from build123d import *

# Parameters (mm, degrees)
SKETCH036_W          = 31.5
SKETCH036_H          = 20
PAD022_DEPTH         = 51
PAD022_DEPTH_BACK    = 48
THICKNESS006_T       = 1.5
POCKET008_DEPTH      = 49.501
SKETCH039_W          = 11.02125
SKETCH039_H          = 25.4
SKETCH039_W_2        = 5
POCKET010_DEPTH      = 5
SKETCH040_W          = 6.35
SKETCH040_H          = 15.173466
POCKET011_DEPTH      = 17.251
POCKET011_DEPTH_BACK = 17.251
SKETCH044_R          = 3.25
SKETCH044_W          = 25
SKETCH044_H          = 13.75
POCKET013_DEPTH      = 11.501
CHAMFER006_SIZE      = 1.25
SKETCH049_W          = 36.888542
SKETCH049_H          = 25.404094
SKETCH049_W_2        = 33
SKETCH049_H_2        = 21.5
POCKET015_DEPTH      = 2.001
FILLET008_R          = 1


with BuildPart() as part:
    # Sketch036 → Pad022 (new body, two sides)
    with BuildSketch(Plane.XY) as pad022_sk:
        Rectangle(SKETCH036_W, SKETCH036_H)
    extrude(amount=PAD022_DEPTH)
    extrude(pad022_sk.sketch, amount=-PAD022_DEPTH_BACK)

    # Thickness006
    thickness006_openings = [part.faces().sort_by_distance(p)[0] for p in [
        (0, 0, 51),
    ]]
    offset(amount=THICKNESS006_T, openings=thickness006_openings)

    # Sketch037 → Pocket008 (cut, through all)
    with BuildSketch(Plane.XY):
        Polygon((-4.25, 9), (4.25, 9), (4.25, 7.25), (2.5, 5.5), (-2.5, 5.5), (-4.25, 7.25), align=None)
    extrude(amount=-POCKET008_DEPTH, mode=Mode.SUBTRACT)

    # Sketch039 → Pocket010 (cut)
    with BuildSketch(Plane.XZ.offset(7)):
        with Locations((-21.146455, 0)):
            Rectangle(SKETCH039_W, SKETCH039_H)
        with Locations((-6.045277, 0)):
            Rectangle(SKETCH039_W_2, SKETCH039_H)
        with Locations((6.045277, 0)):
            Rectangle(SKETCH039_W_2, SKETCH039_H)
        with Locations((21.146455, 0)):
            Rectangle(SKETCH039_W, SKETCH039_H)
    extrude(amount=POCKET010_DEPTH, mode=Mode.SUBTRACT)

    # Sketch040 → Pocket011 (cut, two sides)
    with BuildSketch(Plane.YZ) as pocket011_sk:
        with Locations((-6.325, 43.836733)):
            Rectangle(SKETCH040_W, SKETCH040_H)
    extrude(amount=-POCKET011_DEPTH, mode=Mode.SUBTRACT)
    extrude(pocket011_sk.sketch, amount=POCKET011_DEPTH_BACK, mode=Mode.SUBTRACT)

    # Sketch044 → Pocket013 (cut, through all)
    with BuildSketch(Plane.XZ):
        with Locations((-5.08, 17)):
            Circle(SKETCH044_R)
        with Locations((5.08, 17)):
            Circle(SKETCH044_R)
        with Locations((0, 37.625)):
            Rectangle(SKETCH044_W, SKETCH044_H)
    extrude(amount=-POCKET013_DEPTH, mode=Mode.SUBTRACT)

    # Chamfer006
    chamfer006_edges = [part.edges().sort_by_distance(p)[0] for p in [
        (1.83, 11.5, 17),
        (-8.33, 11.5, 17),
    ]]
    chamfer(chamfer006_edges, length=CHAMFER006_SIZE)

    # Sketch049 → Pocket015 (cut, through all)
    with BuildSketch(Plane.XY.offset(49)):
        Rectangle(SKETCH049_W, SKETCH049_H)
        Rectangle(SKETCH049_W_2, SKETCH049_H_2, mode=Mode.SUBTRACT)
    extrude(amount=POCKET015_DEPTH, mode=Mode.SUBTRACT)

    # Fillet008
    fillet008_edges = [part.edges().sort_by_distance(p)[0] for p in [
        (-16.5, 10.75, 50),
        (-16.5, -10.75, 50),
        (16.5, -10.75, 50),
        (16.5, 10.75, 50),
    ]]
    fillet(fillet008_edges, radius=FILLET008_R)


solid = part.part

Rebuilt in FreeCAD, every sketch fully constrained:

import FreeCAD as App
import Part
import Sketcher

V = App.Vector


def edges_at(feature, points):
    """Names of the edges that pass closest to the given points."""
    edges = feature.Shape.Edges
    near = lambda p: min(range(len(edges)), key=lambda i: edges[i].distToShape(Part.Vertex(*p))[0])
    return sorted({f"Edge{near(p) + 1}" for p in points})


def faces_at(feature, points):
    """Names of the faces that lie closest to the given points."""
    faces = feature.Shape.Faces
    near = lambda p: min(range(len(faces)), key=lambda i: faces[i].distToShape(Part.Vertex(*p))[0])
    return sorted({f"Face{near(p) + 1}" for p in points})


def add_polygon(sketch, points):
    """Adds a closed chain of lines whose ends are joined by coincident constraints."""
    first, n = sketch.GeometryCount, len(points)
    for a, b in zip(points, points[1:] + points[:1]):
        sketch.addGeometry(Part.LineSegment(App.Vector(*a, 0), App.Vector(*b, 0)), False)
    for i in range(n):
        sketch.addConstraint(Sketcher.Constraint("Coincident", first + i, 2, first + (i + 1) % n, 1))

doc = App.newDocument("Part")
params = doc.addObject("Spreadsheet::Sheet", "Params")
for row, (alias, value) in enumerate([
    ("sketch1_height", "20 mm"),
    ("sketch1_width", "31.5 mm"),
    ("pad1_length", "51 mm"),
    ("pad1_length2", "48 mm"),
    ("thickness_wall", "1.5 mm"),
    ("sketch2_width", "5 mm"),
    ("sketch2_width2", "8.5 mm"),
    ("sketch2_height", "1.75 mm"),
    ("sketch3_width", "5 mm"),
    ("sketch3_height", "25.4 mm"),
    ("pocket2_length", "5 mm"),
    ("sketch4_width", "6.35 mm"),
    ("sketch5_diameter", "6.5 mm"),
    ("sketch5_width", "25 mm"),
    ("sketch5_height", "13.75 mm"),
    ("chamfer_size", "1.25 mm"),
    ("sketch6_width", "33 mm"),
    ("sketch6_height", "21.5 mm"),
    ("fillet_radius", "1 mm"),
], start=1):
    params.set(f"A{row}", alias)
    params.set(f"B{row}", "=" + value)
    params.setAlias(f"B{row}", alias)

body = doc.addObject("PartDesign::Body", "Body")

# Sketch on XY plane
sketch1 = doc.addObject("Sketcher::SketchObject", "Sketch")
body.addObject(sketch1)
sketch1.AttachmentSupport = (doc.XY_Plane, [""])
sketch1.MapMode = "FlatFace"
add_polygon(sketch1, [(-15.75, 10), (-15.75, -10), (15.75, -10), (15.75, 10)])  # lines 0-3
sketch1.addConstraint([
    Sketcher.Constraint("Vertical", 0),
    Sketcher.Constraint("Horizontal", 1),
    Sketcher.Constraint("Vertical", 2),
    Sketcher.Constraint("Horizontal", 3),
    Sketcher.Constraint("Symmetric", 0, 2, 2, 2, -1, 1),
    Sketcher.Constraint("DistanceY", 0, 2, 0, 1, 20.0),
    Sketcher.Constraint("DistanceX", 1, 1, 1, 2, 31.5),
])
sketch1.setExpression("Constraints[9]", "Params.sketch1_height")
sketch1.setExpression("Constraints[10]", "Params.sketch1_width")
pad1 = doc.addObject("PartDesign::Pad", "Pad")
body.addObject(pad1)
pad1.Profile = sketch1
pad1.Type = "TwoLengths"
pad1.setExpression("Length", "Params.pad1_length")
pad1.setExpression("Length2", "Params.pad1_length2")
doc.recompute()

thickness = doc.addObject("PartDesign::Thickness", "Thickness")
body.addObject(thickness)
thickness.Base = (pad1, faces_at(pad1, [(0, 0, 51)]))
thickness.setExpression("Value", "Params.thickness_wall")
thickness.Reversed = False
thickness.Join = "Arc"

# Sketch on XY plane
sketch2 = doc.addObject("Sketcher::SketchObject", "Sketch001")
body.addObject(sketch2)
sketch2.AttachmentSupport = (doc.XY_Plane, [""])
sketch2.MapMode = "FlatFace"
add_polygon(sketch2, [(4.25, 9), (-4.25, 9), (-4.25, 7.25), (-2.5, 5.5), (2.5, 5.5), (4.25, 7.25)])  # lines 0-5
sketch2.addConstraint([
    Sketcher.Constraint("Horizontal", 0),
    Sketcher.Constraint("Vertical", 1),
    Sketcher.Constraint("Horizontal", 3),
    Sketcher.Constraint("Vertical", 5),
    Sketcher.Constraint("Symmetric", 1, 2, 4, 2, -2),
    Sketcher.Constraint("Perpendicular", 2, 4),
    Sketcher.Constraint("Equal", 2, 4),
    Sketcher.Constraint("DistanceX", 3, 1, 3, 2, 5.0),
    Sketcher.Constraint("DistanceX", 0, 2, 0, 1, 8.5),
    Sketcher.Constraint("DistanceY", -1, 1, 0, 2, 9.0),
    Sketcher.Constraint("DistanceY", 1, 2, 1, 1, 1.75),
])
sketch2.setExpression("Constraints[13]", "Params.sketch2_width")
sketch2.setExpression("Constraints[14]", "Params.sketch2_width2")
sketch2.setExpression("Constraints[16]", "Params.sketch2_height")
pocket1 = doc.addObject("PartDesign::Pocket", "Pocket")
body.addObject(pocket1)
pocket1.Profile = sketch2
pocket1.Type = "ThroughAll"

# Sketch on XZ plane
sketch3 = doc.addObject("Sketcher::SketchObject", "Sketch002")
body.addObject(sketch3)
sketch3.AttachmentSupport = (doc.XZ_Plane, [""])
sketch3.MapMode = "FlatFace"
sketch3.AttachmentOffset = App.Placement(V(0, 0, 7), App.Rotation())
add_polygon(sketch3, [(-26.65708, 12.7), (-26.65708, -12.7), (-15.63583, -12.7), (-15.63583, 12.7)])  # lines 0-3
add_polygon(sketch3, [(-8.545277, 12.7), (-8.545277, -12.7), (-3.545277, -12.7), (-3.545277, 12.7)])  # lines 4-7
add_polygon(sketch3, [(3.545277, 12.7), (3.545277, -12.7), (8.545277, -12.7), (8.545277, 12.7)])  # lines 8-11
add_polygon(sketch3, [(15.63583, 12.7), (15.63583, -12.7), (26.65708, -12.7), (26.65708, 12.7)])  # lines 12-15
sketch3.addConstraint([
    Sketcher.Constraint("Vertical", 0),
    Sketcher.Constraint("Horizontal", 1),
    Sketcher.Constraint("Vertical", 2),
    Sketcher.Constraint("Horizontal", 3),
    Sketcher.Constraint("Vertical", 4),
    Sketcher.Constraint("Horizontal", 5),
    Sketcher.Constraint("Vertical", 6),
    Sketcher.Constraint("Horizontal", 7),
    Sketcher.Constraint("Vertical", 8),
    Sketcher.Constraint("Horizontal", 9),
    Sketcher.Constraint("Vertical", 10),
    Sketcher.Constraint("Horizontal", 11),
    Sketcher.Constraint("Vertical", 12),
    Sketcher.Constraint("Horizontal", 13),
    Sketcher.Constraint("Vertical", 14),
    Sketcher.Constraint("Horizontal", 15),
    Sketcher.Constraint("Symmetric", 6, 2, 8, 2, -1, 1),
    Sketcher.Constraint("Symmetric", 4, 2, 10, 2, -1, 1),
    Sketcher.Constraint("Symmetric", 2, 2, 12, 2, -1, 1),
    Sketcher.Constraint("Symmetric", 0, 2, 14, 2, -1, 1),
    Sketcher.Constraint("Horizontal", 1, 2, 4, 2),
    Sketcher.Constraint("Horizontal", 3, 2, 6, 2),
    Sketcher.Constraint("Horizontal", 5, 2, 8, 2),
    Sketcher.Constraint("DistanceX", 5, 1, 5, 2, 5.0),
    Sketcher.Constraint("DistanceY", 0, 2, 0, 1, 25.4),
    Sketcher.Constraint("DistanceX", 1, 1, 1, 2, 11.02125),
    Sketcher.Constraint("DistanceX", 0, 2, -1, 1, 26.65708),
    Sketcher.Constraint("DistanceX", 4, 2, -1, 1, 8.545277),
])
sketch3.setExpression("Constraints[39]", "Params.sketch3_width")
sketch3.setExpression("Constraints[40]", "Params.sketch3_height")
pocket2 = doc.addObject("PartDesign::Pocket", "Pocket001")
body.addObject(pocket2)
pocket2.Profile = sketch3
pocket2.setExpression("Length", "Params.pocket2_length")
pocket2.Reversed = True

# Sketch on YZ plane
sketch4 = doc.addObject("Sketcher::SketchObject", "Sketch003")
body.addObject(sketch4)
sketch4.AttachmentSupport = (doc.YZ_Plane, [""])
sketch4.MapMode = "FlatFace"
add_polygon(sketch4, [(-9.5, 51.423466), (-9.5, 36.25), (-3.15, 36.25), (-3.15, 51.423466)])  # lines 0-3
sketch4.addConstraint([
    Sketcher.Constraint("Vertical", 0),
    Sketcher.Constraint("Horizontal", 1),
    Sketcher.Constraint("Vertical", 2),
    Sketcher.Constraint("Horizontal", 3),
    Sketcher.Constraint("DistanceX", 1, 1, 1, 2, 6.35),
    Sketcher.Constraint("DistanceX", 0, 2, -1, 1, 9.5),
    Sketcher.Constraint("DistanceY", -1, 1, 0, 2, 36.25),
    Sketcher.Constraint("DistanceY", 0, 2, 0, 1, 15.173466),
])
sketch4.setExpression("Constraints[8]", "Params.sketch4_width")
pocket3 = doc.addObject("PartDesign::Pocket", "Pocket002")
body.addObject(pocket3)
pocket3.Profile = sketch4
pocket3.Type = "ThroughAll"
pocket3.Midplane = True

# Sketch on XZ plane
sketch5 = doc.addObject("Sketcher::SketchObject", "Sketch004")
body.addObject(sketch5)
sketch5.AttachmentSupport = (doc.XZ_Plane, [""])
sketch5.MapMode = "FlatFace"
sketch5.addGeometry(Part.Circle(V(-5.08, 17, 0), V(0, 0, 1), 3.25), False)  # 0
sketch5.addGeometry(Part.Circle(V(5.08, 17, 0), V(0, 0, 1), 3.25), False)  # 1
add_polygon(sketch5, [(-12.5, 44.5), (-12.5, 30.75), (12.5, 30.75), (12.5, 44.5)])  # lines 2-5
sketch5.addConstraint([
    Sketcher.Constraint("Vertical", 2),
    Sketcher.Constraint("Horizontal", 3),
    Sketcher.Constraint("Vertical", 4),
    Sketcher.Constraint("Horizontal", 5),
    Sketcher.Constraint("Equal", 0, 1),
    Sketcher.Constraint("Symmetric", 0, 3, 1, 3, -2),
    Sketcher.Constraint("Diameter", 0, 6.5),
    Sketcher.Constraint("DistanceX", 3, 1, 3, 2, 25.0),
    Sketcher.Constraint("DistanceY", -1, 1, 0, 3, 17.0),
    Sketcher.Constraint("DistanceY", 2, 2, 2, 1, 13.75),
    Sketcher.Constraint("DistanceX", 2, 2, -1, 1, 12.5),
    Sketcher.Constraint("DistanceY", -1, 1, 4, 2, 44.5),
    Sketcher.Constraint("DistanceX", 0, 3, -1, 1, 5.08),
])
sketch5.setExpression("Constraints[10]", "Params.sketch5_diameter")
sketch5.setExpression("Constraints[11]", "Params.sketch5_width")
sketch5.setExpression("Constraints[13]", "Params.sketch5_height")
pocket4 = doc.addObject("PartDesign::Pocket", "Pocket003")
body.addObject(pocket4)
pocket4.Profile = sketch5
pocket4.Type = "ThroughAll"
doc.recompute()

chamfer = doc.addObject("PartDesign::Chamfer", "Chamfer")
body.addObject(chamfer)
chamfer.Base = (pocket4, edges_at(pocket4, [(1.83, 11.5, 17), (-8.33, 11.5, 17)]))
chamfer.setExpression("Size", "Params.chamfer_size")

# Sketch on XY plane
sketch6 = doc.addObject("Sketcher::SketchObject", "Sketch005")
body.addObject(sketch6)
sketch6.AttachmentSupport = (doc.XY_Plane, [""])
sketch6.MapMode = "FlatFace"
sketch6.AttachmentOffset = App.Placement(V(0, 0, 49), App.Rotation())
add_polygon(sketch6, [(-18.444271, 12.702047), (-18.444271, -12.702047), (18.444271, -12.702047), (18.444271, 12.702047)])  # lines 0-3
add_polygon(sketch6, [(16.5, -10.75), (-16.5, -10.75), (-16.5, 10.75), (16.5, 10.75)])  # lines 4-7
sketch6.addConstraint([
    Sketcher.Constraint("Vertical", 0),
    Sketcher.Constraint("Horizontal", 1),
    Sketcher.Constraint("Vertical", 2),
    Sketcher.Constraint("Horizontal", 3),
    Sketcher.Constraint("Horizontal", 4),
    Sketcher.Constraint("Vertical", 5),
    Sketcher.Constraint("Horizontal", 6),
    Sketcher.Constraint("Vertical", 7),
    Sketcher.Constraint("Symmetric", 0, 2, 2, 2, -1, 1),
    Sketcher.Constraint("Symmetric", 4, 2, 6, 2, -1, 1),
    Sketcher.Constraint("DistanceX", 4, 2, 4, 1, 33.0),
    Sketcher.Constraint("DistanceY", 5, 1, 5, 2, 21.5),
    Sketcher.Constraint("DistanceX", 1, 1, 1, 2, 36.888542),
    Sketcher.Constraint("DistanceY", 0, 2, 0, 1, 25.404094),
])
sketch6.setExpression("Constraints[18]", "Params.sketch6_width")
sketch6.setExpression("Constraints[19]", "Params.sketch6_height")
pocket5 = doc.addObject("PartDesign::Pocket", "Pocket004")
body.addObject(pocket5)
pocket5.Profile = sketch6
pocket5.Type = "ThroughAll"
pocket5.Reversed = True
doc.recompute()

fillet = doc.addObject("PartDesign::Fillet", "Fillet")
body.addObject(fillet)
fillet.Base = (pocket5, edges_at(pocket5, [
    (-16.5, 10.75, 50),
    (-16.5, -10.75, 50),
    (16.5, -10.75, 50),
    (16.5, 10.75, 50),
]))
fillet.setExpression("Radius", "Params.fillet_radius")

doc.recompute()
